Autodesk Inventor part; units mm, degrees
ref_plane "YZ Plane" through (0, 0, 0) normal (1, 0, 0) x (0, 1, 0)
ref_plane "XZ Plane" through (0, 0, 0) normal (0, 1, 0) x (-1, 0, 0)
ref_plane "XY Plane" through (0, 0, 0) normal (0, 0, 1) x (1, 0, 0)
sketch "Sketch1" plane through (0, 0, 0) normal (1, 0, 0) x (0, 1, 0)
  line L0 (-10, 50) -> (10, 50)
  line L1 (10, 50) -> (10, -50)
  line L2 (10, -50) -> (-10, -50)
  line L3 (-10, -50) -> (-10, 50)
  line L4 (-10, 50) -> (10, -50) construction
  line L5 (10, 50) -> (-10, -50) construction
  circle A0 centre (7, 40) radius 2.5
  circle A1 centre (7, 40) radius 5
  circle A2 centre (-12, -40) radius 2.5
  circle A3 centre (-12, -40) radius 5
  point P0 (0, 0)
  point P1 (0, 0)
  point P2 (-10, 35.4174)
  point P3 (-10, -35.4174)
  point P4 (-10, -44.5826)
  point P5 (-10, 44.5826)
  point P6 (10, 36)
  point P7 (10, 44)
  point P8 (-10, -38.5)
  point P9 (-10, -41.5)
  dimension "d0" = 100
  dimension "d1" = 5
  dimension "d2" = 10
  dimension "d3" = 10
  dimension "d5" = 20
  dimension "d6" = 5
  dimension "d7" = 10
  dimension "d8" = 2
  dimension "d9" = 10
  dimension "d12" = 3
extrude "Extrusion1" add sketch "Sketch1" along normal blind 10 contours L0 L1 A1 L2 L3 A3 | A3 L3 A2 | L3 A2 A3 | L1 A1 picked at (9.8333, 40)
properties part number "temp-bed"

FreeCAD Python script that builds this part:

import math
import FreeCAD as App
import Part
import Sketcher
Q = App.Units.Quantity

doc = App.newDocument("Part")
body = doc.addObject("PartDesign::Body", "Body")

# Sketch on YZ plane
sketch1 = body.newObject("Sketcher::SketchObject", "Sketch")
sketch1.AttachmentSupport = (doc.getObject("YZ_Plane"), [""])
sketch1.MapMode = "FlatFace"
sketch1.addGeometry([
    Part.LineSegment(App.Vector(10, 50, 0), App.Vector(-10, 50, 0)),  # 0
    Part.LineSegment(App.Vector(-10, 50, 0), App.Vector(-10, -35.4, 0)),  # 1
    Part.ArcOfCircle(Part.Circle(App.Vector(-12, -40, 0), App.Vector(0, 0, 1), 5), math.radians(66), math.radians(294)),  # 2
    Part.LineSegment(App.Vector(-10, -44.6, 0), App.Vector(-10, -50, 0)),  # 3
    Part.LineSegment(App.Vector(-10, -50, 0), App.Vector(10, -50, 0)),  # 4
    Part.LineSegment(App.Vector(10, -50, 0), App.Vector(10, 50, 0)),  # 5
    Part.Circle(App.Vector(7, 40, 0), App.Vector(0, 0, 1), 2.5),  # 6
    Part.Circle(App.Vector(-12, -40, 0), App.Vector(0, 0, 1), 2.5),  # 7
], False)
sketch1.addConstraint([
    Sketcher.Constraint("Coincident", 0, 2, 1, 1),
    Sketcher.Constraint("Coincident", 1, 2, 2, 1),
    Sketcher.Constraint("Coincident", 2, 2, 3, 1),
    Sketcher.Constraint("Coincident", 3, 2, 4, 1),
    Sketcher.Constraint("Coincident", 4, 2, 5, 1),
    Sketcher.Constraint("Coincident", 5, 2, 0, 1),
    Sketcher.Constraint("Horizontal", 0),
    Sketcher.Constraint("Vertical", 1),
    Sketcher.Constraint("Vertical", 3),
    Sketcher.Constraint("Horizontal", 4),
    Sketcher.Constraint("Vertical", 5),
    Sketcher.Constraint("Coincident", 7, 3, 2, 3),
    Sketcher.Constraint("Equal", 6, 7),
    Sketcher.Constraint("Symmetric", 0, 2, 4, 2, -1, 1),
    Sketcher.Constraint("Vertical", 1, 2, 2, 2),
    Sketcher.Constraint("Diameter", 6, Q("5 mm")),
    Sketcher.Constraint("Radius", 2, Q("5 mm")),
    Sketcher.Constraint("DistanceX", 0, 2, 0, 1, Q("20 mm")),
    Sketcher.Constraint("DistanceY", 5, 1, 5, 2, Q("100 mm")),
    Sketcher.Constraint("DistanceY", 6, 3, 0, 2, Q("10 mm")),
    Sketcher.Constraint("DistanceX", 2, 3, 0, 2, Q("2 mm")),
    Sketcher.Constraint("DistanceY", 3, 2, 2, 3, Q("10 mm")),
    Sketcher.Constraint("DistanceX", 6, 3, 5, 2, Q("3 mm")),
])
pad1 = body.newObject("PartDesign::Pad", "Pad")
pad1.Profile = sketch1
pad1.Length = 10

doc.recompute()
